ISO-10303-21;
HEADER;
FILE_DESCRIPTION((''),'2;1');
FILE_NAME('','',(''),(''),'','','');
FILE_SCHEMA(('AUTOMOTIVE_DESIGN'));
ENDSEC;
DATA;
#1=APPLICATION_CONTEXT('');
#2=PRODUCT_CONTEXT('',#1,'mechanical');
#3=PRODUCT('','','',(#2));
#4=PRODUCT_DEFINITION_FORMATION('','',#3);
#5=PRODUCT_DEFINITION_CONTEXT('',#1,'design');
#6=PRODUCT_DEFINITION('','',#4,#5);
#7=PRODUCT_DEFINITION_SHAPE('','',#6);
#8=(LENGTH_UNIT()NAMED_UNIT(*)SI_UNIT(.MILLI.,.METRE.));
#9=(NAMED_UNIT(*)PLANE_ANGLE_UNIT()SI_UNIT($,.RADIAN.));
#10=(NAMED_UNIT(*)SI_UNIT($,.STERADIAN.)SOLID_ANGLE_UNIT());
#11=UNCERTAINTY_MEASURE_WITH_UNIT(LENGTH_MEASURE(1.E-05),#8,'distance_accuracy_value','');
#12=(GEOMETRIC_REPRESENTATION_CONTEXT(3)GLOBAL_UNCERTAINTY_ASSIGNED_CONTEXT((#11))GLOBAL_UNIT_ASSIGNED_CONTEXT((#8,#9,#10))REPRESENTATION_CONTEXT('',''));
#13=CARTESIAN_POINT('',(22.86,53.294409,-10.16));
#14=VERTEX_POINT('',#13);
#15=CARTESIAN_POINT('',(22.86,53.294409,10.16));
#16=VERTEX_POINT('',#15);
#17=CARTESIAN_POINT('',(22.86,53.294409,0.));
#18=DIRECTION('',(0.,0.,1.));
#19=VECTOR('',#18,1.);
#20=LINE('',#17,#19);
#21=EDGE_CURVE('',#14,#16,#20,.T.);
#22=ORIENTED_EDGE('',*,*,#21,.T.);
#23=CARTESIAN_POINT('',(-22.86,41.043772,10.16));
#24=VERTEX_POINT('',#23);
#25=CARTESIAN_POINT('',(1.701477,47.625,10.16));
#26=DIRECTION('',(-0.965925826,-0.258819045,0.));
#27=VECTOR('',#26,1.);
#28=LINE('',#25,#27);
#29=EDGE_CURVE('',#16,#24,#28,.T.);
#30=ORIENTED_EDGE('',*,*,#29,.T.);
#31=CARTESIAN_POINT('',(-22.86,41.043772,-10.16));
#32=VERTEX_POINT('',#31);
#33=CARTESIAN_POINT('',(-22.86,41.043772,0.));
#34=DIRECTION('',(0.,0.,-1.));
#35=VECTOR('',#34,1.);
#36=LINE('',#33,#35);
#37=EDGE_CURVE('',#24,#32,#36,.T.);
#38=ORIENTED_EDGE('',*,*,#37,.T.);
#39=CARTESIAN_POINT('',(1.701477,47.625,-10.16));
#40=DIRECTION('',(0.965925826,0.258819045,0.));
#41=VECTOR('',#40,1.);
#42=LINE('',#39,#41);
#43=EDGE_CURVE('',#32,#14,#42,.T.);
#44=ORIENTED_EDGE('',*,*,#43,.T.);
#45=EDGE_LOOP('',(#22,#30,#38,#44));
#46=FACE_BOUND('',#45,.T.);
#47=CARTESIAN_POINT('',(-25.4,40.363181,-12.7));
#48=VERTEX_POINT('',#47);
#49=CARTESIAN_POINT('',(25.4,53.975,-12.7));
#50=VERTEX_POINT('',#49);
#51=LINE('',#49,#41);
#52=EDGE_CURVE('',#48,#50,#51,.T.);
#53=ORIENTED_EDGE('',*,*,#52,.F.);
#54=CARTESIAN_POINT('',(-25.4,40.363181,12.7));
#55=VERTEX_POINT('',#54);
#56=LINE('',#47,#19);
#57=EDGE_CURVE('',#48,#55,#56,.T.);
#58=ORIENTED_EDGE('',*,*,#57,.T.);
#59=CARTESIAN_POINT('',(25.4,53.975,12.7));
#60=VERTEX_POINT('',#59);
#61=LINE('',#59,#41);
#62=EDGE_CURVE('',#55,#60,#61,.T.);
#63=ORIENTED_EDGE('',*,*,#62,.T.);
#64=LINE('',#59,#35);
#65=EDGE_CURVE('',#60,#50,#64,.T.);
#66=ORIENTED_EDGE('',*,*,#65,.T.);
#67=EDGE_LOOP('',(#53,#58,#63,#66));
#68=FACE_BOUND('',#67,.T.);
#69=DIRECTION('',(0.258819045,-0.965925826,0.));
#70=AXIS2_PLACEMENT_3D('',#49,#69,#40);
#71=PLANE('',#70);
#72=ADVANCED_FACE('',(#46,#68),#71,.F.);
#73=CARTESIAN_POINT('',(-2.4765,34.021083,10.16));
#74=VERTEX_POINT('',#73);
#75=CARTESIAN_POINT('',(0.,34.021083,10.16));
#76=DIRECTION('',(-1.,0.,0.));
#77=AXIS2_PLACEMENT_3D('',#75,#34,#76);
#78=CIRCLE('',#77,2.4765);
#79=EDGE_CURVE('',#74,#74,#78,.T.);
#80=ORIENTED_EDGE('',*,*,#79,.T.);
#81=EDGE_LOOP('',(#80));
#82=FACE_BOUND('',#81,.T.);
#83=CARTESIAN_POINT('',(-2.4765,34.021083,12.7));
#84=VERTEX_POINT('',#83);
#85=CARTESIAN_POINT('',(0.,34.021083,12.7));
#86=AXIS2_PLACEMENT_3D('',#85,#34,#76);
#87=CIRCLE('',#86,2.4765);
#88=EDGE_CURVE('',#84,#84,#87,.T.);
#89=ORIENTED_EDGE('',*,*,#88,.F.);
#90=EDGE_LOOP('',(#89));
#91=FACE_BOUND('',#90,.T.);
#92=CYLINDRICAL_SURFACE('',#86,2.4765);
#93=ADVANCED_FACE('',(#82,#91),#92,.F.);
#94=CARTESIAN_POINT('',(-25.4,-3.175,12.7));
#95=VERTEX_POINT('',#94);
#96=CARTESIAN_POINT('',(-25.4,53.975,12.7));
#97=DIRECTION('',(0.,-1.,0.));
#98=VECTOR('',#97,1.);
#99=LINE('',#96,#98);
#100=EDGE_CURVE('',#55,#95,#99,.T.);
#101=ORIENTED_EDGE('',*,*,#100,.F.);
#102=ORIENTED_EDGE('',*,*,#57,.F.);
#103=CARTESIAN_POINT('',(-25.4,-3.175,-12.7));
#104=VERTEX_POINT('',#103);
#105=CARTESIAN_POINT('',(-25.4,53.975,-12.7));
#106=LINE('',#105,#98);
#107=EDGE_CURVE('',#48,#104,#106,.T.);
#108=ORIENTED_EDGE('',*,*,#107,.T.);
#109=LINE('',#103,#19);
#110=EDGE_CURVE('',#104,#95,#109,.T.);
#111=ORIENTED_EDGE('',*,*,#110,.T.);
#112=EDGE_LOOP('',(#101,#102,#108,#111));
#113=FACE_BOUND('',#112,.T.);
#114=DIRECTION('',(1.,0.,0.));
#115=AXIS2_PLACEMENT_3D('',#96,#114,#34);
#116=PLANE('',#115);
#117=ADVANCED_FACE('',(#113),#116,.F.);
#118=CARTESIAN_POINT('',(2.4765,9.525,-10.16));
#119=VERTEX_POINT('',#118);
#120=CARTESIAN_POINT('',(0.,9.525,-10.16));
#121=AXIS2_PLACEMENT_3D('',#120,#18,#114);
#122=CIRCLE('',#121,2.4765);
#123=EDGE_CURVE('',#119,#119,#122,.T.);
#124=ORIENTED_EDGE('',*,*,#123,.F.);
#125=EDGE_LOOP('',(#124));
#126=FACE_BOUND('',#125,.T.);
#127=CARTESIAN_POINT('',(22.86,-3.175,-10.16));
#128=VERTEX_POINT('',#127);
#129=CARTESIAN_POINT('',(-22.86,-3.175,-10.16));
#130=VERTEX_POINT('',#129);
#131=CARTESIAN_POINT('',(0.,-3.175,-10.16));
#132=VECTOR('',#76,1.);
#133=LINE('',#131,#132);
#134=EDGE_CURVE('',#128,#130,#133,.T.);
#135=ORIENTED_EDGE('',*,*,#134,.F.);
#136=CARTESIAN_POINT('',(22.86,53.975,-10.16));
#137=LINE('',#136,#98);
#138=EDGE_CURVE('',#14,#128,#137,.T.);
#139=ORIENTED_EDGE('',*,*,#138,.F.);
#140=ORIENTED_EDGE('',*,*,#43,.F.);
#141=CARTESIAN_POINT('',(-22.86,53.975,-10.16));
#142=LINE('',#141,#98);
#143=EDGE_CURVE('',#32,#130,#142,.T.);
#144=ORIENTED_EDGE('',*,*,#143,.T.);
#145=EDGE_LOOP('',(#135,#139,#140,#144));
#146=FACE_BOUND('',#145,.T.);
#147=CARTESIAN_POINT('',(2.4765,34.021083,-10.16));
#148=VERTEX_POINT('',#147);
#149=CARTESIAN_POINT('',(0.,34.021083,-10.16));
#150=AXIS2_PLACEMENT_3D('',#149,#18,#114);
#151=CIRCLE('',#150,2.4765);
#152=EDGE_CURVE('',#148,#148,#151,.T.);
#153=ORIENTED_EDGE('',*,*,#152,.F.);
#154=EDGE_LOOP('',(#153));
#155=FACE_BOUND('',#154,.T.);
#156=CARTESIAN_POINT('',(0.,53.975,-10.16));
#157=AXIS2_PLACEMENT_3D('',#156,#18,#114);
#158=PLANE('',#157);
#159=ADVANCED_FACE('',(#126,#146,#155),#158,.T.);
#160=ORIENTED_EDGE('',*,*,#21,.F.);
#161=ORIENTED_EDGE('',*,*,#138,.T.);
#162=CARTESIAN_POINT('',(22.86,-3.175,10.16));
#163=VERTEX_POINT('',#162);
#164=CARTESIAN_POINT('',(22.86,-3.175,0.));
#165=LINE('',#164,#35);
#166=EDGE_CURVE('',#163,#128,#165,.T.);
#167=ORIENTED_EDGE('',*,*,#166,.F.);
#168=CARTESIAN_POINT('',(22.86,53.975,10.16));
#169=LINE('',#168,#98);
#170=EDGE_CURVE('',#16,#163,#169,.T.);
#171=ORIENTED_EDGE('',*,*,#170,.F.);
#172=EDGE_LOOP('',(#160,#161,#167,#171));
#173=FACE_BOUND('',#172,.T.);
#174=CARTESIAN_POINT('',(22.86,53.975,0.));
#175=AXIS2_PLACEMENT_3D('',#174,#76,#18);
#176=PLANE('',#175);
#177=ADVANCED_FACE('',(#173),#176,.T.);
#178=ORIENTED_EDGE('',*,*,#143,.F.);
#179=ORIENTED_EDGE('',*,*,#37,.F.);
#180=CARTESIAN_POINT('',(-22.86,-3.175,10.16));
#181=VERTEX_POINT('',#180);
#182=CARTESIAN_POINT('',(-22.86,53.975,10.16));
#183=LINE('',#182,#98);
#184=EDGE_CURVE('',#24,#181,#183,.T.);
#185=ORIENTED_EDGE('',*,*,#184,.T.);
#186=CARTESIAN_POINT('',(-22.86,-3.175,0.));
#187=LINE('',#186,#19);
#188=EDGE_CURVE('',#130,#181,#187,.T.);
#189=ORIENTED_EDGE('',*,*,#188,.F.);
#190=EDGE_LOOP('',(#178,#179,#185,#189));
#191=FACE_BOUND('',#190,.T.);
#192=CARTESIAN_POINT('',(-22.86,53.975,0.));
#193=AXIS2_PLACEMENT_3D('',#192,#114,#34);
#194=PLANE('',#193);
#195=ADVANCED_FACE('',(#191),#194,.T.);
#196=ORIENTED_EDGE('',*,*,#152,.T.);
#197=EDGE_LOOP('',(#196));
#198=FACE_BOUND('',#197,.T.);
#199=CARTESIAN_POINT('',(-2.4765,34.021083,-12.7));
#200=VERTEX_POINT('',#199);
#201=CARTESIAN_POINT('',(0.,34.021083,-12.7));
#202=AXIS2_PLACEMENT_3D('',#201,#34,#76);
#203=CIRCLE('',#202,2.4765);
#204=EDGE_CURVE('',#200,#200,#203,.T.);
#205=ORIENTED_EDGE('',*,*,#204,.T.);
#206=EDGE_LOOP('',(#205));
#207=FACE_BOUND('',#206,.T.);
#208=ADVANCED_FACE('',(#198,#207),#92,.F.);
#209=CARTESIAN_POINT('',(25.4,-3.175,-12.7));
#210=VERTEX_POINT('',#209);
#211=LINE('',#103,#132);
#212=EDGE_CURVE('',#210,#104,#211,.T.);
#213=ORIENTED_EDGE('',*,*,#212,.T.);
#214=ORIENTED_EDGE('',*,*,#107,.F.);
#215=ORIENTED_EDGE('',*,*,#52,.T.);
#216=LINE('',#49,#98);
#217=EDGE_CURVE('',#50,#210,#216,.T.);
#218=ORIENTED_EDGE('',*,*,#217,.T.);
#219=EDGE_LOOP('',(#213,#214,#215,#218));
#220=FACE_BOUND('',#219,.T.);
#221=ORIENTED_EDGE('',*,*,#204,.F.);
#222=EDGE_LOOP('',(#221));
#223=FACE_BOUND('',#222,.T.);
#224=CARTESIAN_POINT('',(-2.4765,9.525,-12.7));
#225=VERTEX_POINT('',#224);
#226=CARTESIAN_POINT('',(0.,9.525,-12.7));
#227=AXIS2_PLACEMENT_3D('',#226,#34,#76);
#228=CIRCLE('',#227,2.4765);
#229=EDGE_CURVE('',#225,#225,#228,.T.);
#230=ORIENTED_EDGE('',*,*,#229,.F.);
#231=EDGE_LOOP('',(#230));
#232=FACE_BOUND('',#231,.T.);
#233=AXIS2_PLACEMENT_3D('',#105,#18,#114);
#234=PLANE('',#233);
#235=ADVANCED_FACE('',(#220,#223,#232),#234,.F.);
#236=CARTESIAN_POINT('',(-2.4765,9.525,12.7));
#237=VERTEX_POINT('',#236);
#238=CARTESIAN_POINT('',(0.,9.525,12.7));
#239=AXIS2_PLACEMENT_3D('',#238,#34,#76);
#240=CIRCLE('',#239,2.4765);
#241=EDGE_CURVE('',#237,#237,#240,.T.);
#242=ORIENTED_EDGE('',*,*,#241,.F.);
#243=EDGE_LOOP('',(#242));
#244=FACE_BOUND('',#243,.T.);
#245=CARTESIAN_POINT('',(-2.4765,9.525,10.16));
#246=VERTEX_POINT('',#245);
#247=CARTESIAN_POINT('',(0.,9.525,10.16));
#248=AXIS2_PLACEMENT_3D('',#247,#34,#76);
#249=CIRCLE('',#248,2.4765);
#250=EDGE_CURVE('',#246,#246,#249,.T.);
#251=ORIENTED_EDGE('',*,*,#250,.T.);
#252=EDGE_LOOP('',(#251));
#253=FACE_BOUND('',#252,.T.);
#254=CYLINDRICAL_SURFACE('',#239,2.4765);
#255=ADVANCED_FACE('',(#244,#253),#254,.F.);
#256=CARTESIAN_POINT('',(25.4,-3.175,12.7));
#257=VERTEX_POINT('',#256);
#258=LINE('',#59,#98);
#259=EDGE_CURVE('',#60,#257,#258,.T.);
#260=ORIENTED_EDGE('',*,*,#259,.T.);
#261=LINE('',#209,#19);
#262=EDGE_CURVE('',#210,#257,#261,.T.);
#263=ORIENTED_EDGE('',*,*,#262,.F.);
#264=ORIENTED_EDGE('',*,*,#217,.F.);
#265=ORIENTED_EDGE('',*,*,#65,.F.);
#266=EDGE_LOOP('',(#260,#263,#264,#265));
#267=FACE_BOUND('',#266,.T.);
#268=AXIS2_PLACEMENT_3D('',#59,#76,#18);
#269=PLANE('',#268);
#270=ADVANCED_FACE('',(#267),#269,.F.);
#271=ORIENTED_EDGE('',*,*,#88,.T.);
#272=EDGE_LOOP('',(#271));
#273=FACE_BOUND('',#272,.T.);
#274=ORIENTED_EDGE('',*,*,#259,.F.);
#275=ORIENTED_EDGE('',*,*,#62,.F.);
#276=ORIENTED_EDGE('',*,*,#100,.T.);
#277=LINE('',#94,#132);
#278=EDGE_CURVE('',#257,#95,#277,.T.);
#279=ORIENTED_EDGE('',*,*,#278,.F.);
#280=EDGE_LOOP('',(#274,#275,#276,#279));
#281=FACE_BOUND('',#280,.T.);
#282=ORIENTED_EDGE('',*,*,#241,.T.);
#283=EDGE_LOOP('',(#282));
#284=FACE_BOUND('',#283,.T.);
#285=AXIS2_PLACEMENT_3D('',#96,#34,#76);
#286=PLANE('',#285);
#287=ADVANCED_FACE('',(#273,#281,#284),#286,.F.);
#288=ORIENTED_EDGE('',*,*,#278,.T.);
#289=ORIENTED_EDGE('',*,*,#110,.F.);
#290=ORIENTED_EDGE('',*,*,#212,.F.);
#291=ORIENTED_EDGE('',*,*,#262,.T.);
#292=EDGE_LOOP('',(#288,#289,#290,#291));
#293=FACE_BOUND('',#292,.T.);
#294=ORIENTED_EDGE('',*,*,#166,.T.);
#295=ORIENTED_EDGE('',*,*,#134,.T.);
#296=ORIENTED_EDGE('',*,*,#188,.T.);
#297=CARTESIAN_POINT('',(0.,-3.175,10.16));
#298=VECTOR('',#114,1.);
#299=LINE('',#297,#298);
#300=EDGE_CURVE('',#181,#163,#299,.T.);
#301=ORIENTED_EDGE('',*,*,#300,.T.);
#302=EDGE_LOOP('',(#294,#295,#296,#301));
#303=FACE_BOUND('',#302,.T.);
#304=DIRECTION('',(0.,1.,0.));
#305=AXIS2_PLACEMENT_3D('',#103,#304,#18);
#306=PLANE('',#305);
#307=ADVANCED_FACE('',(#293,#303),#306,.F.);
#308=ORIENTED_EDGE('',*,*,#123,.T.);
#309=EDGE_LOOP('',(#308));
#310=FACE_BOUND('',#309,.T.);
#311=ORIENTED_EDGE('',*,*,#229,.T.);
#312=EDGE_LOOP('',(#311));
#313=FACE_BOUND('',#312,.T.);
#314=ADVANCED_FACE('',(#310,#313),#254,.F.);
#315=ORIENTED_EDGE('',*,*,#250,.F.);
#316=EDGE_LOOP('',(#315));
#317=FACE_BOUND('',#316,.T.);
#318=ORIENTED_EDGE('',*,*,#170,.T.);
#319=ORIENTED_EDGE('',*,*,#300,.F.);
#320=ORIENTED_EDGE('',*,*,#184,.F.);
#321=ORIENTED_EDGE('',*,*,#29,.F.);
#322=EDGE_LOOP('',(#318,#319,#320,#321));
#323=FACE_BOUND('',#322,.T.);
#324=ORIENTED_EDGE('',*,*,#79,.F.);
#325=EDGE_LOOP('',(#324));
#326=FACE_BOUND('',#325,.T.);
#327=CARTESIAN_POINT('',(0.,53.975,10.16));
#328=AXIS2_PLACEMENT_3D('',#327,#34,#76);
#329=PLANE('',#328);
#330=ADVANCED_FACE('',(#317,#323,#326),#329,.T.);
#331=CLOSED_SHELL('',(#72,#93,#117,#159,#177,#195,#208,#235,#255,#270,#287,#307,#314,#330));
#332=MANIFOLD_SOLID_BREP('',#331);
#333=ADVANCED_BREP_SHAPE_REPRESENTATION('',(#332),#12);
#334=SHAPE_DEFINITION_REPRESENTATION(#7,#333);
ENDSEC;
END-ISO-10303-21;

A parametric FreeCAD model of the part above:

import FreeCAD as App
import Part
import Sketcher

V = App.Vector
Q = App.Units.Quantity


def add_polygon(sketch, points):
    """Adds a closed chain of lines whose ends are joined by coincident constraints."""
    first, n = sketch.GeometryCount, len(points)
    for a, b in zip(points, points[1:] + points[:1]):
        sketch.addGeometry(Part.LineSegment(App.Vector(*a, 0), App.Vector(*b, 0)), False)
    for i in range(n):
        sketch.addConstraint(Sketcher.Constraint("Coincident", first + i, 2, first + (i + 1) % n, 1))

doc = App.newDocument("Part")
params = doc.addObject("Spreadsheet::Sheet", "Params")
for row, (alias, value) in enumerate([
    ("sketch1_width", "2 in"),
    ("sketch1_height", "1 in"),
    ("sketch1_width2", "1.8 in"),
    ("sketch1_height2", "0.8 in"),
    ("pad1_length", "4.25 in"),
    ("sketch2_width", "2 in"),
    ("sketch3_width", "2 in"),
    ("sketch4_diameter", "0.195 in"),
], start=1):
    params.set(f"A{row}", alias)
    params.set(f"B{row}", "=" + value)
    params.setAlias(f"B{row}", alias)

body = doc.addObject("PartDesign::Body", "Body")

# Sketch on XZ plane
sketch1 = body.newObject("Sketcher::SketchObject", "Sketch")
sketch1.AttachmentSupport = (doc.getObject("XZ_Plane"), [""])
sketch1.MapMode = "FlatFace"
add_polygon(sketch1, [(-25, -13), (-25, 13), (25, 13), (25, -13)])  # lines 0-3
add_polygon(sketch1, [(23, 10), (-23, 10), (-23, -10), (23, -10)])  # lines 4-7
sketch1.addConstraint([
    Sketcher.Constraint("Vertical", 0),
    Sketcher.Constraint("Horizontal", 1),
    Sketcher.Constraint("Vertical", 2),
    Sketcher.Constraint("Horizontal", 3),
    Sketcher.Constraint("Horizontal", 4),
    Sketcher.Constraint("Vertical", 5),
    Sketcher.Constraint("Horizontal", 6),
    Sketcher.Constraint("Vertical", 7),
    Sketcher.Constraint("Symmetric", 0, 2, 2, 2, -1, 1),
    Sketcher.Constraint("Symmetric", 4, 2, 6, 2, -1, 1),
    Sketcher.Constraint("DistanceX", 1, 1, 1, 2, Q("2 in")),
    Sketcher.Constraint("DistanceY", 0, 1, 0, 2, Q("1 in")),
    Sketcher.Constraint("DistanceX", 4, 2, 4, 1, Q("1.8 in")),
    Sketcher.Constraint("DistanceY", 5, 2, 5, 1, Q("0.8 in")),
])
sketch1.setExpression("Constraints[18]", "Params.sketch1_width")
sketch1.setExpression("Constraints[19]", "Params.sketch1_height")
sketch1.setExpression("Constraints[20]", "Params.sketch1_width2")
sketch1.setExpression("Constraints[21]", "Params.sketch1_height2")
pad1 = body.newObject("PartDesign::Pad", "Pad")
pad1.Profile = sketch1
pad1.setExpression("Length", "Params.pad1_length")
pad1.Midplane = True

# Sketch on XY plane
sketch2 = body.newObject("Sketcher::SketchObject", "Sketch001")
sketch2.AttachmentSupport = (doc.getObject("XY_Plane"), [""])
sketch2.MapMode = "FlatFace"
sketch2.AttachmentOffset = App.Placement(V(0, 0, 0.5 * 25.4), App.Rotation())
add_polygon(sketch2, [(25, 54), (-25, 54), (-25, 40)])  # lines 0-2
sketch2.addConstraint([
    Sketcher.Constraint("Horizontal", 0),
    Sketcher.Constraint("Vertical", 1),
    Sketcher.Constraint("DistanceX", 0, 2, 0, 1, Q("2 in")),
    Sketcher.Constraint("DistanceX", 0, 2, -1, 1, Q("1 in")),
    Sketcher.Constraint("Angle", 2, Q("15 deg")),
    Sketcher.Constraint("DistanceY", -1, 1, 0, 2, Q("2.125 in")),
])
sketch2.setExpression("Constraints[5]", "Params.sketch2_width")
pocket1 = body.newObject("PartDesign::Pocket", "Pocket")
pocket1.Profile = sketch2
pocket1.Type = "ThroughAll"

# Sketch on XY plane
sketch3 = body.newObject("Sketcher::SketchObject", "Sketch002")
sketch3.AttachmentSupport = (doc.getObject("XY_Plane"), [""])
sketch3.MapMode = "FlatFace"
sketch3.AttachmentOffset = App.Placement(V(0, 0, 0.5 * 25.4), App.Rotation())
add_polygon(sketch3, [(-25, -3), (-25, -54), (25, -54), (25, -3)])  # lines 0-3
sketch3.addConstraint([
    Sketcher.Constraint("Vertical", 0),
    Sketcher.Constraint("Horizontal", 1),
    Sketcher.Constraint("Vertical", 2),
    Sketcher.Constraint("Horizontal", 3),
    Sketcher.Constraint("Equal", 3, 0),
    Sketcher.Constraint("DistanceX", 1, 1, 1, 2, Q("2 in")),
    Sketcher.Constraint("DistanceX", 0, 2, -1, 1, Q("1 in")),
    Sketcher.Constraint("DistanceY", 0, 2, -1, 1, Q("2.125 in")),
])
sketch3.setExpression("Constraints[9]", "Params.sketch3_width")
pocket2 = body.newObject("PartDesign::Pocket", "Pocket001")
pocket2.Profile = sketch3
pocket2.Type = "ThroughAll"

# Sketch on XY plane
sketch4 = body.newObject("Sketcher::SketchObject", "Sketch003")
sketch4.AttachmentSupport = (doc.getObject("XY_Plane"), [""])
sketch4.MapMode = "FlatFace"
sketch4.AttachmentOffset = App.Placement(V(0, 0, -0.5 * 25.4), App.Rotation())
sketch4.addGeometry([
    Part.Circle(V(0, 9.5, 0), V(0, 0, 1), 2.5),
    Part.Circle(V(0, 34, 0), V(0, 0, 1), 2.5),
], False)
sketch4.addConstraint([
    Sketcher.Constraint("Equal", 0, 1),
    Sketcher.Constraint("PointOnObject", 0, 3, -2),
    Sketcher.Constraint("PointOnObject", 1, 3, -2),
    Sketcher.Constraint("Diameter", 0, Q("0.195 in")),
    Sketcher.Constraint("DistanceY", -1, 1, 0, 3, Q("0.375 in")),
    Sketcher.Constraint("DistanceY", -1, 1, 1, 3, Q("34.021083 mm")),
])
sketch4.setExpression("Constraints[3]", "Params.sketch4_diameter")
pocket3 = body.newObject("PartDesign::Pocket", "Pocket002")
pocket3.Profile = sketch4
pocket3.Type = "ThroughAll"
pocket3.Reversed = True

doc.recompute()
